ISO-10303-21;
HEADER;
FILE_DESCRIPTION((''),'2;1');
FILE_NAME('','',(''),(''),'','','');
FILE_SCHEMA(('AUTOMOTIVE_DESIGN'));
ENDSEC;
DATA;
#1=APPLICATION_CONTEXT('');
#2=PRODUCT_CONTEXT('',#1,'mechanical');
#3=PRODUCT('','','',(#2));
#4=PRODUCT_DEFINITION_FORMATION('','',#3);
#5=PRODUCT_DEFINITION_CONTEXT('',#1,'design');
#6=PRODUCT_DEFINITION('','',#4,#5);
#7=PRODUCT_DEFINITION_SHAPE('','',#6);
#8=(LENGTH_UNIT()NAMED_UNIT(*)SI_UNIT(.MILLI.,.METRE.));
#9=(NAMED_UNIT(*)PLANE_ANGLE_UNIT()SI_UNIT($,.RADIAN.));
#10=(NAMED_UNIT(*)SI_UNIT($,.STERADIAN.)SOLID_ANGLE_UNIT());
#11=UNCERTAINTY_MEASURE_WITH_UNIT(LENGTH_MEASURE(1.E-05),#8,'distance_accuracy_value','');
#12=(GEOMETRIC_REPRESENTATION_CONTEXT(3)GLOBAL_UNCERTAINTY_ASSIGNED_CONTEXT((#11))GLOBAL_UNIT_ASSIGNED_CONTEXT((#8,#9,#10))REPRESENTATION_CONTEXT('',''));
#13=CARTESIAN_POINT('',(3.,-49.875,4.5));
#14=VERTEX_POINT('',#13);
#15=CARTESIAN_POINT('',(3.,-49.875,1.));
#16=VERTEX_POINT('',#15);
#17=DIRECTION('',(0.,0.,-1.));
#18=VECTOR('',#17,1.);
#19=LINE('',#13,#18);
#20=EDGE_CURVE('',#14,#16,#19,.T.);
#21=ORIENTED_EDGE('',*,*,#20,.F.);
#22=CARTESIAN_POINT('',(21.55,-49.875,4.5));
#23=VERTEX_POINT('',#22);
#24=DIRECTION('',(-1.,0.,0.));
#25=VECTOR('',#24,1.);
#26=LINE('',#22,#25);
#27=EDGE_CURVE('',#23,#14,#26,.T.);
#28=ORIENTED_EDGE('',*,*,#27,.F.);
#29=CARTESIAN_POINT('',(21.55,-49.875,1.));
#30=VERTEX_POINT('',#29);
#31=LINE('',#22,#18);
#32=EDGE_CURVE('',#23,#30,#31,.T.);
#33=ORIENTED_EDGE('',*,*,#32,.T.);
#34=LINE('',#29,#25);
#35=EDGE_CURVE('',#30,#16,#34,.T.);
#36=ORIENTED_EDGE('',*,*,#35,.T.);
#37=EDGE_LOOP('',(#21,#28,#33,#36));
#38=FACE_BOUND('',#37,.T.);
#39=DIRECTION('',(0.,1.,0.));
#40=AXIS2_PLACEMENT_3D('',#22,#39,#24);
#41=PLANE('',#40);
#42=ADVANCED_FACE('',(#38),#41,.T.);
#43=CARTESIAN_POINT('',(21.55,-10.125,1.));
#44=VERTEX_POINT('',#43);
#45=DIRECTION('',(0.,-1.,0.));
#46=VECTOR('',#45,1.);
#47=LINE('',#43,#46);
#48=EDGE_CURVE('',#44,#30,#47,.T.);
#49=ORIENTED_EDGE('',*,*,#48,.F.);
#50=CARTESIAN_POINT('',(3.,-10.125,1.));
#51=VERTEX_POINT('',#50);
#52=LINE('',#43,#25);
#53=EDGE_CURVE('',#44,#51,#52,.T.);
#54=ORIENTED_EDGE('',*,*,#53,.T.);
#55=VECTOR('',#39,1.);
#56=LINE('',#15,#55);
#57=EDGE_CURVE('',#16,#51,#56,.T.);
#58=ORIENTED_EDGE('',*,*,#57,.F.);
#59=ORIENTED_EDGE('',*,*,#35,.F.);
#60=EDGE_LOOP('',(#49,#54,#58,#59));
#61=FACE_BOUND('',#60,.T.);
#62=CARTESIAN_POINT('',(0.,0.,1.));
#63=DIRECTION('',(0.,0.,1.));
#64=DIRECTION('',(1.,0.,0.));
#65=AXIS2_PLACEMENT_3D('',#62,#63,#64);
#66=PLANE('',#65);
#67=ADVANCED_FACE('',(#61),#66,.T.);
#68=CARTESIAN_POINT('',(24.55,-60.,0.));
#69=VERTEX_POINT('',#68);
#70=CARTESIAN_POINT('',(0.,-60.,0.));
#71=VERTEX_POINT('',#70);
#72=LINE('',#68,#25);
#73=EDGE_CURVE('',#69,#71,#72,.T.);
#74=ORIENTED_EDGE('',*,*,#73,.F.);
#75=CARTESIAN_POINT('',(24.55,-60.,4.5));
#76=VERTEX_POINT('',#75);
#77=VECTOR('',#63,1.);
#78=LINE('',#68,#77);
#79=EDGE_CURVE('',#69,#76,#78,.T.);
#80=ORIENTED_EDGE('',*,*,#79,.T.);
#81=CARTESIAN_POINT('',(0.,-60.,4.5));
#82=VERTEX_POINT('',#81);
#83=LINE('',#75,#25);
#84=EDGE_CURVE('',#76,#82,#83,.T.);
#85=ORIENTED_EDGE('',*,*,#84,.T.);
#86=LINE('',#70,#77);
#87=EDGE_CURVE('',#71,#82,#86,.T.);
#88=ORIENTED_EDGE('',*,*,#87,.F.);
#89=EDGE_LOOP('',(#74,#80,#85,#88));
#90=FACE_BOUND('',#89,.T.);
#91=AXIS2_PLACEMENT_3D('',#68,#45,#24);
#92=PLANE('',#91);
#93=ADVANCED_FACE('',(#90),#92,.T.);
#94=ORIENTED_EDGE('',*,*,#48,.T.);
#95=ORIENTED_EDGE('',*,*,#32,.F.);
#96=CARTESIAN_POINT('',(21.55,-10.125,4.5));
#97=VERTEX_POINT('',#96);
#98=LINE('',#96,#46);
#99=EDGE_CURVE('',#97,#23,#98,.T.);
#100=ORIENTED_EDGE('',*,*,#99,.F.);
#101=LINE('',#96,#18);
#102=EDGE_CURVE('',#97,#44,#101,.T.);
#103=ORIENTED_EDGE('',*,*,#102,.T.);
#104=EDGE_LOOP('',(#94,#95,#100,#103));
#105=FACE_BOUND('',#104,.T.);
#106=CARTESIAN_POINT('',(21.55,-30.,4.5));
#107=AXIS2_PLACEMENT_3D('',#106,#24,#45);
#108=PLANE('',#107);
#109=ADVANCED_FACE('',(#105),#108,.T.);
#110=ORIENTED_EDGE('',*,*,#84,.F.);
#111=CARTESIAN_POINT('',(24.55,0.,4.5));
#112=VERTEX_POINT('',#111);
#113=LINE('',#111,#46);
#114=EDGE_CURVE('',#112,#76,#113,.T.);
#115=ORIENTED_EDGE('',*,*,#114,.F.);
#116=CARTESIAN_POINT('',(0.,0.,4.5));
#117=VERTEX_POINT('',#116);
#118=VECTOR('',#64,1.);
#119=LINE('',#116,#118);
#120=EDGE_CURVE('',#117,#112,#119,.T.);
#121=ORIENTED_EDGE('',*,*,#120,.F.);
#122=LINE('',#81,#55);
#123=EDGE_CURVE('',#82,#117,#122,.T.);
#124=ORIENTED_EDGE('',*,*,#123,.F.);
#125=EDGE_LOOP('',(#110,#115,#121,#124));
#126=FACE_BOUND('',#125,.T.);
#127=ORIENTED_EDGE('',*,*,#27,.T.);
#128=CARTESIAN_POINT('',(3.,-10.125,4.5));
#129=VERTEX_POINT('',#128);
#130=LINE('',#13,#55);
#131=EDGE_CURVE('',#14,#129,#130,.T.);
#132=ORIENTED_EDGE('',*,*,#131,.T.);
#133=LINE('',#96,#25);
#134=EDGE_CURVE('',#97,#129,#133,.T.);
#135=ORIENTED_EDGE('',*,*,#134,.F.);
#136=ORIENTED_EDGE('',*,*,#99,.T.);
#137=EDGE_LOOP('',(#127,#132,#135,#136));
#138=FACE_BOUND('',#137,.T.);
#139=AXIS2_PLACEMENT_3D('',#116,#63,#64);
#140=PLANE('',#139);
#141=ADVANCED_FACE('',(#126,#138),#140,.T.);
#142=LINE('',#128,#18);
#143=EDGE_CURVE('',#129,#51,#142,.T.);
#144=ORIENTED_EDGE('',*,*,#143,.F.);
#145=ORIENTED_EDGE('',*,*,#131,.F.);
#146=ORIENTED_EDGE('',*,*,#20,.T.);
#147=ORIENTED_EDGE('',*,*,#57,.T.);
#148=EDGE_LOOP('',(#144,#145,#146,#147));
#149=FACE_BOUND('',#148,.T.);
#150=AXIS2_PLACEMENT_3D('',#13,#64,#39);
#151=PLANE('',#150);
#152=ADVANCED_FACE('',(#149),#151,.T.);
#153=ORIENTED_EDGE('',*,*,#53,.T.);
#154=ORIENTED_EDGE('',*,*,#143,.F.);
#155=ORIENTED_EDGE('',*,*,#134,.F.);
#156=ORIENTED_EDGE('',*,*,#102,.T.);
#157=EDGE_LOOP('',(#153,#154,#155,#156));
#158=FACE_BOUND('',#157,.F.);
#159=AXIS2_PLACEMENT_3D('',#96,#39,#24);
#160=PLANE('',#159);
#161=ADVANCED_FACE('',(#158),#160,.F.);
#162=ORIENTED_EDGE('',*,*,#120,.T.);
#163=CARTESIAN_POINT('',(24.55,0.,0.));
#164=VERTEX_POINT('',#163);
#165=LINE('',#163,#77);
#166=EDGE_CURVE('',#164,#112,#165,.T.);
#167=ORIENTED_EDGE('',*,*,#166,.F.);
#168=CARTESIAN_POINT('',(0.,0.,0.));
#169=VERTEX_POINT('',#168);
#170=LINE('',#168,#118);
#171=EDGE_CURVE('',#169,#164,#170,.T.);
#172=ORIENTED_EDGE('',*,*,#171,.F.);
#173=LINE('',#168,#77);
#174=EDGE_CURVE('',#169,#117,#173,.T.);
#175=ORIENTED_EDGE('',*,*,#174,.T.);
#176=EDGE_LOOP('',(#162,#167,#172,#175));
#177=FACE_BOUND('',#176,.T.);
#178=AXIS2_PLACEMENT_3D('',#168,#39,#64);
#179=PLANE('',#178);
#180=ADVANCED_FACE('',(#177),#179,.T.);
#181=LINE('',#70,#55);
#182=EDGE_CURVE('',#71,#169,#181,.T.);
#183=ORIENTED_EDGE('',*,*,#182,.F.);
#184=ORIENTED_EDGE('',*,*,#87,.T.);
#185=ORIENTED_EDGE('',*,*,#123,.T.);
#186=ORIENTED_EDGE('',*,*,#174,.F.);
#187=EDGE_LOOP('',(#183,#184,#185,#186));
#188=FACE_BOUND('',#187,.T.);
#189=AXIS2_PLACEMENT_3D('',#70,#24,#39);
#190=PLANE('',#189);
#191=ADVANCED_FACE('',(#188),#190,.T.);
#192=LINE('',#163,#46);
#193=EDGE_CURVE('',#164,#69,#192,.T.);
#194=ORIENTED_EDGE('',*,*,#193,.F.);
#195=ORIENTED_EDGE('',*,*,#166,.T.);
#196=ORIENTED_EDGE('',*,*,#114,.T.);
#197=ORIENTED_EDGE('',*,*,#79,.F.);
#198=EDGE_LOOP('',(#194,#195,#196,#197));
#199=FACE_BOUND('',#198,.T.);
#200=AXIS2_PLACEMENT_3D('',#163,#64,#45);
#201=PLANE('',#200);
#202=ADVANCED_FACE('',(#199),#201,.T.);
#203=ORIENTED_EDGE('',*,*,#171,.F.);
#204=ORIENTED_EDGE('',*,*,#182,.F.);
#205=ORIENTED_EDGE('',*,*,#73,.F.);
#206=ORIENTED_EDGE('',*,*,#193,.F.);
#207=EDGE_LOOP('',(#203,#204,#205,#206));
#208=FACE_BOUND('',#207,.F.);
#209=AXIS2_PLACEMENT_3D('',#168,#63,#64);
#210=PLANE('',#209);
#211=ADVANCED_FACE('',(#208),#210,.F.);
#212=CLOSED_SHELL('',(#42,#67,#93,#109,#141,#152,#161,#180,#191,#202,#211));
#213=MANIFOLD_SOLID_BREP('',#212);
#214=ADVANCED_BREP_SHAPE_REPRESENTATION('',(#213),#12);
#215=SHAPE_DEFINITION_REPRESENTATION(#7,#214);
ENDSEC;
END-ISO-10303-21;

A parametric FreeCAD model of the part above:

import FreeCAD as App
import Part
import Sketcher
Q = App.Units.Quantity


def add_polygon(sketch, points):
    """Adds a closed chain of lines whose ends are joined by coincident constraints."""
    first, n = sketch.GeometryCount, len(points)
    for a, b in zip(points, points[1:] + points[:1]):
        sketch.addGeometry(Part.LineSegment(App.Vector(*a, 0), App.Vector(*b, 0)), False)
    for i in range(n):
        sketch.addConstraint(Sketcher.Constraint("Coincident", first + i, 2, first + (i + 1) % n, 1))

doc = App.newDocument("Part")
body = doc.addObject("PartDesign::Body", "Body")

# Sketch on XY plane
sketch1 = body.newObject("Sketcher::SketchObject", "Sketch")
sketch1.AttachmentSupport = (doc.getObject("XY_Plane"), [""])
sketch1.MapMode = "FlatFace"
add_polygon(sketch1, [(25, 0), (0, 0), (0, -60), (25, -60)])  # lines 0-3
sketch1.addConstraint([
    Sketcher.Constraint("Horizontal", 0),
    Sketcher.Constraint("Vertical", 1),
    Sketcher.Constraint("Horizontal", 2),
    Sketcher.Constraint("Vertical", 3),
    Sketcher.Constraint("Coincident", 0, 2, -1, 1),
    Sketcher.Constraint("DistanceY", 1, 2, 1, 1, Q("60 mm")),
    Sketcher.Constraint("DistanceX", 0, 2, 0, 1, Q("24.55 mm")),
])
pad1 = body.newObject("PartDesign::Pad", "Pad")
pad1.Profile = sketch1
pad1.Length = 4.5

# Sketch on XY plane
sketch2 = body.newObject("Sketcher::SketchObject", "Sketch001")
sketch2.AttachmentSupport = (doc.getObject("XY_Plane"), [""])
sketch2.MapMode = "FlatFace"
sketch2.AttachmentOffset = App.Placement(App.Vector(0, 0, 4.5), App.Rotation())
add_polygon(sketch2, [(22, -50), (22, -10), (3, -10), (3, -50)])  # lines 0-3
sketch2.addConstraint([
    Sketcher.Constraint("Vertical", 0),
    Sketcher.Constraint("Horizontal", 1),
    Sketcher.Constraint("Vertical", 2),
    Sketcher.Constraint("Horizontal", 3),
    Sketcher.Constraint("DistanceX", -1, 1, 1, 2, Q("3 mm")),
    Sketcher.Constraint("DistanceY", 0, 2, -1, 1, Q("10.125 mm")),
    Sketcher.Constraint("DistanceX", 1, 2, 1, 1, Q("18.55 mm")),
    Sketcher.Constraint("DistanceY", 0, 1, 0, 2, Q("39.75 mm")),
])
pocket1 = body.newObject("PartDesign::Pocket", "Pocket")
pocket1.Profile = sketch2
pocket1.Length = 3.5

doc.recompute()
